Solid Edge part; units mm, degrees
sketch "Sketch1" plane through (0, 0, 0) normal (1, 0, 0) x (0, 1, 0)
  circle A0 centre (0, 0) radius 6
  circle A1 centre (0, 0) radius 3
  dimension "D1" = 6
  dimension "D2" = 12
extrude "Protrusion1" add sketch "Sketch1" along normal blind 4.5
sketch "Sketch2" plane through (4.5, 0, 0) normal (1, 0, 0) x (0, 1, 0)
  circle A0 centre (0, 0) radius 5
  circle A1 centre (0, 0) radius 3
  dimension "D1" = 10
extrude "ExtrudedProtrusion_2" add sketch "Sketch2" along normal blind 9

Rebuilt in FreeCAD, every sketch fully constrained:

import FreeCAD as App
import Part
import Sketcher

doc = App.newDocument("Part")
params = doc.addObject("Spreadsheet::Sheet", "Params")
for row, (alias, value) in enumerate([
    ("sketch1_diameter", "12 mm"),
    ("sketch1_diameter2", "6 mm"),
    ("pad1_length", "4.5 mm"),
    ("sketch2_diameter", "10 mm"),
    ("sketch2_diameter2", "6 mm"),
    ("pad2_length", "9 mm"),
], start=1):
    params.set(f"A{row}", alias)
    params.set(f"B{row}", "=" + value)
    params.setAlias(f"B{row}", alias)

body = doc.addObject("PartDesign::Body", "Body")

sketch1 = body.newObject("Sketcher::SketchObject", "Sketch")
sketch1.AttachmentSupport = (doc.getObject("YZ_Plane"), [""])
sketch1.MapMode = "FlatFace"
sketch1.addGeometry(Part.Circle(App.Vector(0, 0, 0), App.Vector(0, 0, 1), 6), False)
sketch1.addGeometry(Part.Circle(App.Vector(0, 0, 0), App.Vector(0, 0, 1), 3), False)
sketch1.addConstraint(Sketcher.Constraint("Coincident", 0, 3, -1, 1))
sketch1.addConstraint(Sketcher.Constraint("Coincident", 1, 3, -1, 1))
sketch1.addConstraint(Sketcher.Constraint("Diameter", 0, 12.0))
sketch1.addConstraint(Sketcher.Constraint("Diameter", 1, 6.0))
sketch1.setExpression("Constraints[2]", "Params.sketch1_diameter")
sketch1.setExpression("Constraints[3]", "Params.sketch1_diameter2")
pad1 = body.newObject("PartDesign::Pad", "Pad")
pad1.Profile = sketch1
pad1.setExpression("Length", "Params.pad1_length")

sketch2 = body.newObject("Sketcher::SketchObject", "Sketch001")
sketch2.AttachmentSupport = (doc.getObject("YZ_Plane"), [""])
sketch2.MapMode = "FlatFace"
sketch2.AttachmentOffset = App.Placement(App.Vector(0, 0, 4.5), App.Rotation())
sketch2.addGeometry(Part.Circle(App.Vector(0, 0, 0), App.Vector(0, 0, 1), 5), False)
sketch2.addGeometry(Part.Circle(App.Vector(0, 0, 0), App.Vector(0, 0, 1), 3), False)
sketch2.addConstraint(Sketcher.Constraint("Coincident", 0, 3, -1, 1))
sketch2.addConstraint(Sketcher.Constraint("Coincident", 1, 3, -1, 1))
sketch2.addConstraint(Sketcher.Constraint("Diameter", 0, 10.0))
sketch2.addConstraint(Sketcher.Constraint("Diameter", 1, 6.0))
sketch2.setExpression("Constraints[2]", "Params.sketch2_diameter")
sketch2.setExpression("Constraints[3]", "Params.sketch2_diameter2")
pad2 = body.newObject("PartDesign::Pad", "Pad001")
pad2.Profile = sketch2
pad2.setExpression("Length", "Params.pad2_length")

doc.recompute()
